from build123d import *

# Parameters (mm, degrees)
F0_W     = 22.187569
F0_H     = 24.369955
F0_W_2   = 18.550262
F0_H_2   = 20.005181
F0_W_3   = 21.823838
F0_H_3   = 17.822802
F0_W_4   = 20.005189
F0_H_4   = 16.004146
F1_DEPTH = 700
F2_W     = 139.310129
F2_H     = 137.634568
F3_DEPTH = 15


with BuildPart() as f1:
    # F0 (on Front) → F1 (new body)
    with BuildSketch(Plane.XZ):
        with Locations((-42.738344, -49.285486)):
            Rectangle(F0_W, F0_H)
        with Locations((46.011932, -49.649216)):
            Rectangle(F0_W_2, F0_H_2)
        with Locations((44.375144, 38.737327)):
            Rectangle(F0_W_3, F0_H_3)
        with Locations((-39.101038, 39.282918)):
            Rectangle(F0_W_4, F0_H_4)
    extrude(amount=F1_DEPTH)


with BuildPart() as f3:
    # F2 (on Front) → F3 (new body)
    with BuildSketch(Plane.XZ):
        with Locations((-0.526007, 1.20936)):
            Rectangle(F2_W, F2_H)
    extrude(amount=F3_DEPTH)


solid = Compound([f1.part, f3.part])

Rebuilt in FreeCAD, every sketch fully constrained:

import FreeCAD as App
import Part
import Sketcher
Q = App.Units.Quantity


def add_polygon(sketch, points):
    """Adds a closed chain of lines whose ends are joined by coincident constraints."""
    first, n = sketch.GeometryCount, len(points)
    for a, b in zip(points, points[1:] + points[:1]):
        sketch.addGeometry(Part.LineSegment(App.Vector(*a, 0), App.Vector(*b, 0)), False)
    for i in range(n):
        sketch.addConstraint(Sketcher.Constraint("Coincident", first + i, 2, first + (i + 1) % n, 1))

doc = App.newDocument("Part")
body = doc.addObject("PartDesign::Body", "Body")
body.AllowCompound = True

# Sketch on XZ plane
sketch1 = body.newObject("Sketcher::SketchObject", "Sketch")
sketch1.AttachmentSupport = (doc.getObject("XZ_Plane"), [""])
sketch1.MapMode = "FlatFace"
add_polygon(sketch1, [(-54, -37), (-54, -61), (-32, -61), (-32, -37)])  # lines 0-3
add_polygon(sketch1, [(37, -40), (37, -60), (55, -60), (55, -40)])  # lines 4-7
add_polygon(sketch1, [(33, 48), (33, 30), (55, 30), (55, 48)])  # lines 8-11
add_polygon(sketch1, [(-49, 47), (-49, 31), (-29, 31), (-29, 47)])  # lines 12-15
sketch1.addConstraint(Sketcher.Constraint("Vertical", 0))
sketch1.addConstraint(Sketcher.Constraint("Horizontal", 1))
sketch1.addConstraint(Sketcher.Constraint("Vertical", 2))
sketch1.addConstraint(Sketcher.Constraint("Horizontal", 3))
sketch1.addConstraint(Sketcher.Constraint("Vertical", 4))
sketch1.addConstraint(Sketcher.Constraint("Horizontal", 5))
sketch1.addConstraint(Sketcher.Constraint("Vertical", 6))
sketch1.addConstraint(Sketcher.Constraint("Horizontal", 7))
sketch1.addConstraint(Sketcher.Constraint("Vertical", 8))
sketch1.addConstraint(Sketcher.Constraint("Horizontal", 9))
sketch1.addConstraint(Sketcher.Constraint("Vertical", 10))
sketch1.addConstraint(Sketcher.Constraint("Horizontal", 11))
sketch1.addConstraint(Sketcher.Constraint("Vertical", 12))
sketch1.addConstraint(Sketcher.Constraint("Horizontal", 13))
sketch1.addConstraint(Sketcher.Constraint("Vertical", 14))
sketch1.addConstraint(Sketcher.Constraint("Horizontal", 15))
sketch1.addConstraint(Sketcher.Constraint("Vertical", 6, 2, 9, 2))
sketch1.addConstraint(Sketcher.Constraint("DistanceY", 8, 2, 8, 1, Q("17.822802 mm")))
sketch1.addConstraint(Sketcher.Constraint("DistanceX", 1, 1, 1, 2, Q("22.187569 mm")))
sketch1.addConstraint(Sketcher.Constraint("DistanceX", 9, 1, 9, 2, Q("21.823838 mm")))
sketch1.addConstraint(Sketcher.Constraint("DistanceX", 13, 1, 13, 2, Q("20.005189 mm")))
sketch1.addConstraint(Sketcher.Constraint("DistanceY", 4, 2, 4, 1, Q("20.005181 mm")))
sketch1.addConstraint(Sketcher.Constraint("DistanceX", -1, 1, 4, 2, Q("36.736801 mm")))
sketch1.addConstraint(Sketcher.Constraint("DistanceY", 4, 2, 2, 2, Q("22.551298 mm")))
sketch1.addConstraint(Sketcher.Constraint("DistanceX", 5, 1, 5, 2, Q("18.550262 mm")))
sketch1.addConstraint(Sketcher.Constraint("DistanceY", 0, 2, 0, 1, Q("24.369955 mm")))
sketch1.addConstraint(Sketcher.Constraint("DistanceY", 12, 2, 12, 1, Q("16.004146 mm")))
sketch1.addConstraint(Sketcher.Constraint("DistanceX", 0, 2, -1, 1, Q("53.832129 mm")))
sketch1.addConstraint(Sketcher.Constraint("DistanceY", 2, 2, -1, 1, Q("37.100508 mm")))
sketch1.addConstraint(Sketcher.Constraint("DistanceY", -1, 1, 14, 2, Q("47.284991 mm")))
sketch1.addConstraint(Sketcher.Constraint("DistanceY", 7, 2, 8, 2, Q("69.472551 mm")))
sketch1.addConstraint(Sketcher.Constraint("DistanceX", 13, 2, 8, 2, Q("62.561668 mm")))
pad1 = body.newObject("PartDesign::Pad", "Pad")
pad1.Profile = sketch1
pad1.Length = 700
body2 = doc.addObject("PartDesign::Body", "Body001")

# Sketch on XZ plane
sketch2 = body2.newObject("Sketcher::SketchObject", "Sketch001")
sketch2.AttachmentSupport = (doc.getObject("XZ_Plane001"), [""])
sketch2.MapMode = "FlatFace"
add_polygon(sketch2, [(-70, 70), (-70, -68), (69, -68), (69, 70)])  # lines 0-3
sketch2.addConstraint(Sketcher.Constraint("Vertical", 0))
sketch2.addConstraint(Sketcher.Constraint("Horizontal", 1))
sketch2.addConstraint(Sketcher.Constraint("Vertical", 2))
sketch2.addConstraint(Sketcher.Constraint("Horizontal", 3))
sketch2.addConstraint(Sketcher.Constraint("DistanceX", 1, 1, 1, 2, Q("139.310129 mm")))
sketch2.addConstraint(Sketcher.Constraint("DistanceY", 0, 2, 0, 1, Q("137.634568 mm")))
sketch2.addConstraint(Sketcher.Constraint("DistanceX", 0, 2, -1, 1, Q("70.181072 mm")))
sketch2.addConstraint(Sketcher.Constraint("DistanceY", 0, 2, -1, 1, Q("67.607924 mm")))
pad2 = body2.newObject("PartDesign::Pad", "Pad001")
pad2.Profile = sketch2
pad2.Length = 15

doc.recompute()
